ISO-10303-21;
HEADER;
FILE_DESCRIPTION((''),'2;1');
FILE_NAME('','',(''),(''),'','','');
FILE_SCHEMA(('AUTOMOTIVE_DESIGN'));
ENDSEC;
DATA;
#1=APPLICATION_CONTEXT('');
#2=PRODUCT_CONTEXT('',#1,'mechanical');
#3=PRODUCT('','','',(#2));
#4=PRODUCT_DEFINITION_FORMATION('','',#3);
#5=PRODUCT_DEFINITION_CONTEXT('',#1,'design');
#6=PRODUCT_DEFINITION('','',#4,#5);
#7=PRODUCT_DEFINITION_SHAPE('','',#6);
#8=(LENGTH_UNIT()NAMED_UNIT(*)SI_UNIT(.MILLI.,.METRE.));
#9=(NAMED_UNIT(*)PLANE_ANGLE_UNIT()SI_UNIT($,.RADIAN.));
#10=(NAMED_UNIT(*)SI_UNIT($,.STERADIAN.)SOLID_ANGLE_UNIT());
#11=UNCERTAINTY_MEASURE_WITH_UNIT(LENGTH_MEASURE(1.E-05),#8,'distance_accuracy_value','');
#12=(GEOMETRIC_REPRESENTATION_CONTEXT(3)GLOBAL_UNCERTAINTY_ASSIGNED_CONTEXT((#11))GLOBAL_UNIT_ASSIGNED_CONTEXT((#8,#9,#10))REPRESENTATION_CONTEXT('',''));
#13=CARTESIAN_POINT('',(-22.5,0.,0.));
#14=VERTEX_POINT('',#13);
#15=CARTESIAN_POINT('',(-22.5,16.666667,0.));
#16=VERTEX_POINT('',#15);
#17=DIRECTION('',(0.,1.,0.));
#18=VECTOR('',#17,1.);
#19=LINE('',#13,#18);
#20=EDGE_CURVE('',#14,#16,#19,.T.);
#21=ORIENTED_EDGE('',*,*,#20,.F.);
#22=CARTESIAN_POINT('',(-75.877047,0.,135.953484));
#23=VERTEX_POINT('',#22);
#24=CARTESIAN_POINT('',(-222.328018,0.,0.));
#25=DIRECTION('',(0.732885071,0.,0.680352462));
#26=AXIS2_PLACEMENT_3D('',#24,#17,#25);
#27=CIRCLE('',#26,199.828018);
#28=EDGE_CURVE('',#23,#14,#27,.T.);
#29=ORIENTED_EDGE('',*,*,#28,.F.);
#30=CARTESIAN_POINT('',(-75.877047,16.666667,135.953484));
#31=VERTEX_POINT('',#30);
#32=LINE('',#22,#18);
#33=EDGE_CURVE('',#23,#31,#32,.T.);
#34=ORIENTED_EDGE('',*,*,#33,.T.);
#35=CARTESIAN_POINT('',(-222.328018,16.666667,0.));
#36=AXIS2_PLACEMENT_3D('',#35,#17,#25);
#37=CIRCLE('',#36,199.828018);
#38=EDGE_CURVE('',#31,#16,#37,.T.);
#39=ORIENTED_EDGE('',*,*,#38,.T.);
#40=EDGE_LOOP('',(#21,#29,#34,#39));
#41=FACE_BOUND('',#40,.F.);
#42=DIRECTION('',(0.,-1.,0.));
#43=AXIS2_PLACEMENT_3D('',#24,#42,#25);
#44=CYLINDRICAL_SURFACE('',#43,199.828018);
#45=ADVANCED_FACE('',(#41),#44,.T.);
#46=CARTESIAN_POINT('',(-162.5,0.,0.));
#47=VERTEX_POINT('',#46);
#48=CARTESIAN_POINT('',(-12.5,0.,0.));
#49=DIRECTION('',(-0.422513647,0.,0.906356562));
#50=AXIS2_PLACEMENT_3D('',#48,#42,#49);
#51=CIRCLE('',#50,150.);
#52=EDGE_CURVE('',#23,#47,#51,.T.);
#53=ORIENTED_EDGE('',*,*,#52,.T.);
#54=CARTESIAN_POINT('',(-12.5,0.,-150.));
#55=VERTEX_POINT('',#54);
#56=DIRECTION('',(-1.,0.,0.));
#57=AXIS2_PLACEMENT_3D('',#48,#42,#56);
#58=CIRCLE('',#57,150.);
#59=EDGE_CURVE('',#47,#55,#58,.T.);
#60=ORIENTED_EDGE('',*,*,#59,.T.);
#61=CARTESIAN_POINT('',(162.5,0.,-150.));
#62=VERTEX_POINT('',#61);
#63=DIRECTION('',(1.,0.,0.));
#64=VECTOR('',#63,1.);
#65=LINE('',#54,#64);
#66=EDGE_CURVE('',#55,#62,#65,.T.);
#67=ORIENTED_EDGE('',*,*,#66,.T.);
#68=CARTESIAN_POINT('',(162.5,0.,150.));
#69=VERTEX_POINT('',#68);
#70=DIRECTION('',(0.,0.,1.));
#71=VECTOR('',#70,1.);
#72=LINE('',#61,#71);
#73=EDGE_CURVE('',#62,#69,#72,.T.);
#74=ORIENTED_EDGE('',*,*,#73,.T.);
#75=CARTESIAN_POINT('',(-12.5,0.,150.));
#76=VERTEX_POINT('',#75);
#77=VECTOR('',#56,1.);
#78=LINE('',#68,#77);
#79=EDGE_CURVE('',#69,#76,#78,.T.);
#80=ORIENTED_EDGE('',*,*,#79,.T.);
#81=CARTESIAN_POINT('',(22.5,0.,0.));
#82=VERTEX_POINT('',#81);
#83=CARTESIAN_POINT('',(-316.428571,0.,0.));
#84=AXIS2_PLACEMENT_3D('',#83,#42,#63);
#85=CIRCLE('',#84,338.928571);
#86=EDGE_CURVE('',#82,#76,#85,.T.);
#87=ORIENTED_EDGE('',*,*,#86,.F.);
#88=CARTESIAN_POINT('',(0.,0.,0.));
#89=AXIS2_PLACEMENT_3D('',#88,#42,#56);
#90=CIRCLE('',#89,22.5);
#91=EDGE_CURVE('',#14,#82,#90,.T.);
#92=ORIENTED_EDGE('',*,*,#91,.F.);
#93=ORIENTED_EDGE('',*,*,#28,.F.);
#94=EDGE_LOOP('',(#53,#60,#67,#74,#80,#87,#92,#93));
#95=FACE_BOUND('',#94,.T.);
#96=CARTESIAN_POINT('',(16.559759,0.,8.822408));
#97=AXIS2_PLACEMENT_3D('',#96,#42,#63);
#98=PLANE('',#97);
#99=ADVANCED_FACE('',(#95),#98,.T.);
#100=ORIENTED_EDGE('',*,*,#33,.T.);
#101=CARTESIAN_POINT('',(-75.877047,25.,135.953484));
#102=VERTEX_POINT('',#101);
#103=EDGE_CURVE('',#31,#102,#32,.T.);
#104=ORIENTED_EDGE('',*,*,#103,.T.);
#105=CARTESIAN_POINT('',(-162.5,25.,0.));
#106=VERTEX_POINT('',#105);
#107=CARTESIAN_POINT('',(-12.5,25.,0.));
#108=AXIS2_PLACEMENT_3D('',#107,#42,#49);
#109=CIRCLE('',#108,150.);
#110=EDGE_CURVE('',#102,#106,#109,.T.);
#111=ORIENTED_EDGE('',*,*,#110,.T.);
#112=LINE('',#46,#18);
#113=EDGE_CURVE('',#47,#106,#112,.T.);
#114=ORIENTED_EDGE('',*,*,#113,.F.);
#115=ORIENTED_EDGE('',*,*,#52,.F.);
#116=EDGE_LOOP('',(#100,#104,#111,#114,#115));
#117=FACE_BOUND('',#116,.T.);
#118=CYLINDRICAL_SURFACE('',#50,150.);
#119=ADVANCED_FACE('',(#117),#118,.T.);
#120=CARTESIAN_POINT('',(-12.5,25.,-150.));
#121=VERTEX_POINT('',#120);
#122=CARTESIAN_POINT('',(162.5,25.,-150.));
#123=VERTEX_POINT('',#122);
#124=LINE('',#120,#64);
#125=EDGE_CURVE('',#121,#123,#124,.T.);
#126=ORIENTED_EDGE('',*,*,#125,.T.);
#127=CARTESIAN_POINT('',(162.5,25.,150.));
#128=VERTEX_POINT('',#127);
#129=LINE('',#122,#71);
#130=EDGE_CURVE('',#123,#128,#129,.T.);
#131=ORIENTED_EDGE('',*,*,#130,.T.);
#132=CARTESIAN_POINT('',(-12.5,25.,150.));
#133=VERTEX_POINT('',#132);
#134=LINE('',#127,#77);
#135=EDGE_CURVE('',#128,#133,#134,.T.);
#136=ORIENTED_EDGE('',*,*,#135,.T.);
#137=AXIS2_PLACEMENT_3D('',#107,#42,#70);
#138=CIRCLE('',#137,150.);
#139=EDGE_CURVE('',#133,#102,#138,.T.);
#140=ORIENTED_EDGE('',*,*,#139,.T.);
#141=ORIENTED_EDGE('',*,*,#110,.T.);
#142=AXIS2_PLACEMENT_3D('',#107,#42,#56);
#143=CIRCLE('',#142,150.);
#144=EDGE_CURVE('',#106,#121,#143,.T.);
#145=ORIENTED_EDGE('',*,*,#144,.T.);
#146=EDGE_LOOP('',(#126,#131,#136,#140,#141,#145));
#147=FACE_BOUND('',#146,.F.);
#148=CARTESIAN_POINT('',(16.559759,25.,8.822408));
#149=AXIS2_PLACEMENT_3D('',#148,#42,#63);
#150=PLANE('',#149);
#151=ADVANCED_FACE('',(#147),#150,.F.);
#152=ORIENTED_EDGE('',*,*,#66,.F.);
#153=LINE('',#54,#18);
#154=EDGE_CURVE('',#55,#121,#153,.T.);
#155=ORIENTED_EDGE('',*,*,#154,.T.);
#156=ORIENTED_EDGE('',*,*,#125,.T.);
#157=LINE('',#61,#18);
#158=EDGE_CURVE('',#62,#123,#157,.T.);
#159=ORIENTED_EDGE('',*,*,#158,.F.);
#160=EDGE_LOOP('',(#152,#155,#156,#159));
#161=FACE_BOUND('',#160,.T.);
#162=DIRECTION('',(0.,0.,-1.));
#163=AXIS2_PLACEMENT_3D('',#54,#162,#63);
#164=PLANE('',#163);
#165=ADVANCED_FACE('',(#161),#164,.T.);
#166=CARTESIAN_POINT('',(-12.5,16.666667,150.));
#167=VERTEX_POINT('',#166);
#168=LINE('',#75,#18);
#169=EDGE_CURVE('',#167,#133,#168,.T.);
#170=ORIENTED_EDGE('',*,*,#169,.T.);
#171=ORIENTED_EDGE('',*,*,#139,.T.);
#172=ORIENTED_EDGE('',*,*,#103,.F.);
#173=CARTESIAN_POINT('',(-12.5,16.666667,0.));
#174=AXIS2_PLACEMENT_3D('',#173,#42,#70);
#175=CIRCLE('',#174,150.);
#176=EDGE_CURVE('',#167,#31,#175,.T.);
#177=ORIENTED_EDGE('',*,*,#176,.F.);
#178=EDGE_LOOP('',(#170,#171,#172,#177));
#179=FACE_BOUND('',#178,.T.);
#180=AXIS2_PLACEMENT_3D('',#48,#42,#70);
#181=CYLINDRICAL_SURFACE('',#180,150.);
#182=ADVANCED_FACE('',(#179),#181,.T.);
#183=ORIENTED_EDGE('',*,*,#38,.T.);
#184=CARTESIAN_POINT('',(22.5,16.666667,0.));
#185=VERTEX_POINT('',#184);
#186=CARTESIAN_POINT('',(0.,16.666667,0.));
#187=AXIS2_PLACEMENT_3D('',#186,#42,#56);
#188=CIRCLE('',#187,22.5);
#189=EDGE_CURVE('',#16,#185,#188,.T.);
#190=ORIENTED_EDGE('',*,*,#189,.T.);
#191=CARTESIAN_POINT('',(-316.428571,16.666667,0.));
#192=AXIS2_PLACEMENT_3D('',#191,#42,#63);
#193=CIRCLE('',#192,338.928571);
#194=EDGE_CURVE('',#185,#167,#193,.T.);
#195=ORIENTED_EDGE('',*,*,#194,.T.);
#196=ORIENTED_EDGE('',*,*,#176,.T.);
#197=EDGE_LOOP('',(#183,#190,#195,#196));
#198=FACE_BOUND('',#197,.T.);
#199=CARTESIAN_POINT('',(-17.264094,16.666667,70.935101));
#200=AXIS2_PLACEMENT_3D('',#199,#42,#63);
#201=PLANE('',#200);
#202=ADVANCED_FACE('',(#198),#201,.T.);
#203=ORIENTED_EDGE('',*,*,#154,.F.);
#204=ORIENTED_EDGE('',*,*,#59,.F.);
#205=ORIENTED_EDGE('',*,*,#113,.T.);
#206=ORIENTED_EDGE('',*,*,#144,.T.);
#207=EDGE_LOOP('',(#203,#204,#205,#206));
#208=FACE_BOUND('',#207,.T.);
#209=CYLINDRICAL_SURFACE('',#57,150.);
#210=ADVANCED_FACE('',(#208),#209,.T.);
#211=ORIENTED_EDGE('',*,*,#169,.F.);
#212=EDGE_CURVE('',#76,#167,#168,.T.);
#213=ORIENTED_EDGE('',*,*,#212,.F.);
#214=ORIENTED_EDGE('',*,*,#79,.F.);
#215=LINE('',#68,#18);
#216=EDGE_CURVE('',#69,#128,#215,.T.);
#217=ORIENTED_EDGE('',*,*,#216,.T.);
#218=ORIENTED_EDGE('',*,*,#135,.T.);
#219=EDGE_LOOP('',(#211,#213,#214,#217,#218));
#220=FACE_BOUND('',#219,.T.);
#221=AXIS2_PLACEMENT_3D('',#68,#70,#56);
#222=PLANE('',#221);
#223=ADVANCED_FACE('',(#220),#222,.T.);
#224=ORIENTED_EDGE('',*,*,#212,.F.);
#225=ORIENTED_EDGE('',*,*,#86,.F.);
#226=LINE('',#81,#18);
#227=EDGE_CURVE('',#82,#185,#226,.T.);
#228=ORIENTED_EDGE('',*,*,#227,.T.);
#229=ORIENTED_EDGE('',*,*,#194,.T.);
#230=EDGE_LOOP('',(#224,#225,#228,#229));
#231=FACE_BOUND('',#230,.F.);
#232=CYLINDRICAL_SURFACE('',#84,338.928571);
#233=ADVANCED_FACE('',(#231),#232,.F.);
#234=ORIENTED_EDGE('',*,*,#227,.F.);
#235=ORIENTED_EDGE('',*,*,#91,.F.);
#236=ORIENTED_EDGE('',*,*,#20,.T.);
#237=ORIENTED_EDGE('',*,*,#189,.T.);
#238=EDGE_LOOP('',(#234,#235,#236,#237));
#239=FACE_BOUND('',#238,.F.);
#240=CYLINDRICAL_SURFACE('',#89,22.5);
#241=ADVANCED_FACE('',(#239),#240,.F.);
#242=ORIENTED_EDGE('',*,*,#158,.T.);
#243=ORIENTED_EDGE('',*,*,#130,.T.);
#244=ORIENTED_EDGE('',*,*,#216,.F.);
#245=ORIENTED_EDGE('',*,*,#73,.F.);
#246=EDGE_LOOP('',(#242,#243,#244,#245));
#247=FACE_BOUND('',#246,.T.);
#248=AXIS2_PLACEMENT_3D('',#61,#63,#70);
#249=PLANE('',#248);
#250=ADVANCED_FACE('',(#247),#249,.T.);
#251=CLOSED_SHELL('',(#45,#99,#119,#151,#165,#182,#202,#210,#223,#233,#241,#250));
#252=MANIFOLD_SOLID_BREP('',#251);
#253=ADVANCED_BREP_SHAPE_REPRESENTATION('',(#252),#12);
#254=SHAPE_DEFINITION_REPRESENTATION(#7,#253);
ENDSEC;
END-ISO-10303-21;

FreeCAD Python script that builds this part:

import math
import FreeCAD as App
import Part
import Sketcher

V = App.Vector
Q = App.Units.Quantity

doc = App.newDocument("Part")
body = doc.addObject("PartDesign::Body", "Body")

sketch1 = body.newObject("Sketcher::SketchObject", "Sketch")
sketch1.AttachmentSupport = (doc.getObject("XZ_Plane"), [""])
sketch1.MapMode = "FlatFace"
sketch1.addGeometry([
    Part.LineSegment(V(162, 150, 0), V(-12, 150, 0)),
    Part.ArcOfCircle(Part.Circle(V(-12, 0, 0), V(0, 0, 1), 150), math.radians(90), math.radians(115)),
    Part.ArcOfCircle(Part.Circle(V(-12, 0, 0), V(0, 0, 1), 150), math.radians(115), math.radians(180)),
    Part.ArcOfCircle(Part.Circle(V(-12, 0, 0), V(0, 0, 1), 150), math.radians(180), math.radians(270)),
    Part.LineSegment(V(-12, -150, 0), V(162, -150, 0)),
    Part.LineSegment(V(162, -150, 0), V(162, 150, 0)),
], False)
sketch1.addConstraint([
    Sketcher.Constraint("Tangent", 0, 2, 1, 1),
    Sketcher.Constraint("Tangent", 1, 2, 2, 1),
    Sketcher.Constraint("Tangent", 2, 2, 3, 1),
    Sketcher.Constraint("Tangent", 3, 2, 4, 1),
    Sketcher.Constraint("Coincident", 4, 2, 5, 1),
    Sketcher.Constraint("Coincident", 5, 2, 0, 1),
    Sketcher.Constraint("Horizontal", 0),
    Sketcher.Constraint("Horizontal", 4),
    Sketcher.Constraint("Vertical", 5),
    Sketcher.Constraint("Coincident", 3, 3, 1, 3),
    Sketcher.Constraint("PointOnObject", 1, 3, -1),
    Sketcher.Constraint("PointOnObject", 2, 2, -1),
    Sketcher.Constraint("Radius", 1, Q("150 mm")),
    Sketcher.Constraint("DistanceX", 0, 2, 0, 1, Q("175 mm")),
    Sketcher.Constraint("DistanceX", 1, 3, -1, 1, Q("12.5 mm")),
    Sketcher.Constraint("DistanceX", 1, 2, -1, 1, Q("75.877047 mm")),
])
pad1 = body.newObject("PartDesign::Pad", "Pad")
pad1.Profile = sketch1
pad1.Length = 25
pad1.Reversed = True

sketch2 = body.newObject("Sketcher::SketchObject", "Sketch001")
sketch2.AttachmentSupport = (doc.getObject("XZ_Plane"), [""])
sketch2.MapMode = "FlatFace"
sketch2.addGeometry([
    Part.ArcOfCircle(Part.Circle(V(-316, 0, 0), V(0, 0, 1), 339), math.radians(0), math.radians(26)),
    Part.ArcOfCircle(Part.Circle(V(-12, 0, 0), V(0, 0, 1), 150), math.radians(90), math.radians(115)),
    Part.ArcOfCircle(Part.Circle(V(-222, 0, 0), V(0, 0, 1), 200), math.radians(0), math.radians(43)),
    Part.ArcOfCircle(Part.Circle(V(0, 0, 0), V(0, 0, 1), 22), math.radians(180), math.radians(360)),
], False)
sketch2.addConstraint([
    Sketcher.Constraint("Coincident", 0, 2, 1, 1),
    Sketcher.Constraint("Coincident", 1, 2, 2, 2),
    Sketcher.Constraint("Tangent", 2, 1, 3, 1),
    Sketcher.Constraint("Tangent", 3, 2, 0, 1),
    Sketcher.Constraint("Coincident", 3, 3, -1, 1),
    Sketcher.Constraint("PointOnObject", 0, 3, -1),
    Sketcher.Constraint("PointOnObject", 1, 3, -1),
    Sketcher.Constraint("PointOnObject", 2, 3, -1),
    Sketcher.Constraint("Vertical", 1, 3, 0, 2),
    Sketcher.Constraint("Radius", 1, Q("150 mm")),
    Sketcher.Constraint("Radius", 3, Q("22.5 mm")),
    Sketcher.Constraint("DistanceX", 2, 1, 1, 3, Q("10 mm")),
    Sketcher.Constraint("Radius", 2, Q("199.828018 mm")),
])
pocket1 = body.newObject("PartDesign::Pocket", "Pocket")
pocket1.Profile = sketch2
pocket1.Length = 16.666667
body2 = doc.addObject("PartDesign::Body", "Body001")

sketch3 = body2.newObject("Sketcher::SketchObject", "Sketch002")
sketch3.AttachmentSupport = (doc.getObject("XZ_Plane001"), [""])
sketch3.MapMode = "FlatFace"
sketch3.AttachmentOffset = App.Placement(V(0, 0, -25), App.Rotation())
sketch3.addGeometry([
    Part.LineSegment(V(162, 150, 0), V(162, -150, 0)),
    Part.LineSegment(V(162, -150, 0), V(138, -150, 0)),
    Part.LineSegment(V(138, -150, 0), V(138, 150, 0)),
    Part.LineSegment(V(138, 150, 0), V(162, 150, 0)),
], False)
sketch3.addConstraint([
    Sketcher.Constraint("Coincident", 0, 2, 1, 1),
    Sketcher.Constraint("Coincident", 1, 2, 2, 1),
    Sketcher.Constraint("Coincident", 2, 2, 3, 1),
    Sketcher.Constraint("Coincident", 3, 2, 0, 1),
    Sketcher.Constraint("Vertical", 0),
    Sketcher.Constraint("Horizontal", 1),
    Sketcher.Constraint("Vertical", 2),
    Sketcher.Constraint("Horizontal", 3),
    Sketcher.Constraint("DistanceX", 1, 2, 1, 1, Q("25 mm")),
    Sketcher.Constraint("DistanceY", 0, 2, 0, 1, Q("300 mm")),
    Sketcher.Constraint("DistanceY", 0, 2, -1, 1, Q("150 mm")),
    Sketcher.Constraint("DistanceX", -1, 1, 0, 2, Q("162.5 mm")),
])
pad2 = body2.newObject("PartDesign::Pad", "Pad001")
pad2.Profile = sketch3
pad2.Length = 400
body3 = doc.addObject("PartDesign::Body", "Body002")
doc.recompute()

mirroring = doc.addObject("Part::Mirroring", "Mirroring")
mirroring.Source = body
mirroring.Base = V(150, -175, 0)
mirroring.Normal = V(0, -1, 0)
body3.BaseFeature = mirroring
doc.recompute()
body4 = doc.addObject("PartDesign::Body", "Body003")
doc.recompute()

body4.BaseFeature = body
doc.recompute()
body.Visibility = False
body2.Visibility = False
body3.Visibility = False
mirroring.Visibility = False

doc.recompute()
